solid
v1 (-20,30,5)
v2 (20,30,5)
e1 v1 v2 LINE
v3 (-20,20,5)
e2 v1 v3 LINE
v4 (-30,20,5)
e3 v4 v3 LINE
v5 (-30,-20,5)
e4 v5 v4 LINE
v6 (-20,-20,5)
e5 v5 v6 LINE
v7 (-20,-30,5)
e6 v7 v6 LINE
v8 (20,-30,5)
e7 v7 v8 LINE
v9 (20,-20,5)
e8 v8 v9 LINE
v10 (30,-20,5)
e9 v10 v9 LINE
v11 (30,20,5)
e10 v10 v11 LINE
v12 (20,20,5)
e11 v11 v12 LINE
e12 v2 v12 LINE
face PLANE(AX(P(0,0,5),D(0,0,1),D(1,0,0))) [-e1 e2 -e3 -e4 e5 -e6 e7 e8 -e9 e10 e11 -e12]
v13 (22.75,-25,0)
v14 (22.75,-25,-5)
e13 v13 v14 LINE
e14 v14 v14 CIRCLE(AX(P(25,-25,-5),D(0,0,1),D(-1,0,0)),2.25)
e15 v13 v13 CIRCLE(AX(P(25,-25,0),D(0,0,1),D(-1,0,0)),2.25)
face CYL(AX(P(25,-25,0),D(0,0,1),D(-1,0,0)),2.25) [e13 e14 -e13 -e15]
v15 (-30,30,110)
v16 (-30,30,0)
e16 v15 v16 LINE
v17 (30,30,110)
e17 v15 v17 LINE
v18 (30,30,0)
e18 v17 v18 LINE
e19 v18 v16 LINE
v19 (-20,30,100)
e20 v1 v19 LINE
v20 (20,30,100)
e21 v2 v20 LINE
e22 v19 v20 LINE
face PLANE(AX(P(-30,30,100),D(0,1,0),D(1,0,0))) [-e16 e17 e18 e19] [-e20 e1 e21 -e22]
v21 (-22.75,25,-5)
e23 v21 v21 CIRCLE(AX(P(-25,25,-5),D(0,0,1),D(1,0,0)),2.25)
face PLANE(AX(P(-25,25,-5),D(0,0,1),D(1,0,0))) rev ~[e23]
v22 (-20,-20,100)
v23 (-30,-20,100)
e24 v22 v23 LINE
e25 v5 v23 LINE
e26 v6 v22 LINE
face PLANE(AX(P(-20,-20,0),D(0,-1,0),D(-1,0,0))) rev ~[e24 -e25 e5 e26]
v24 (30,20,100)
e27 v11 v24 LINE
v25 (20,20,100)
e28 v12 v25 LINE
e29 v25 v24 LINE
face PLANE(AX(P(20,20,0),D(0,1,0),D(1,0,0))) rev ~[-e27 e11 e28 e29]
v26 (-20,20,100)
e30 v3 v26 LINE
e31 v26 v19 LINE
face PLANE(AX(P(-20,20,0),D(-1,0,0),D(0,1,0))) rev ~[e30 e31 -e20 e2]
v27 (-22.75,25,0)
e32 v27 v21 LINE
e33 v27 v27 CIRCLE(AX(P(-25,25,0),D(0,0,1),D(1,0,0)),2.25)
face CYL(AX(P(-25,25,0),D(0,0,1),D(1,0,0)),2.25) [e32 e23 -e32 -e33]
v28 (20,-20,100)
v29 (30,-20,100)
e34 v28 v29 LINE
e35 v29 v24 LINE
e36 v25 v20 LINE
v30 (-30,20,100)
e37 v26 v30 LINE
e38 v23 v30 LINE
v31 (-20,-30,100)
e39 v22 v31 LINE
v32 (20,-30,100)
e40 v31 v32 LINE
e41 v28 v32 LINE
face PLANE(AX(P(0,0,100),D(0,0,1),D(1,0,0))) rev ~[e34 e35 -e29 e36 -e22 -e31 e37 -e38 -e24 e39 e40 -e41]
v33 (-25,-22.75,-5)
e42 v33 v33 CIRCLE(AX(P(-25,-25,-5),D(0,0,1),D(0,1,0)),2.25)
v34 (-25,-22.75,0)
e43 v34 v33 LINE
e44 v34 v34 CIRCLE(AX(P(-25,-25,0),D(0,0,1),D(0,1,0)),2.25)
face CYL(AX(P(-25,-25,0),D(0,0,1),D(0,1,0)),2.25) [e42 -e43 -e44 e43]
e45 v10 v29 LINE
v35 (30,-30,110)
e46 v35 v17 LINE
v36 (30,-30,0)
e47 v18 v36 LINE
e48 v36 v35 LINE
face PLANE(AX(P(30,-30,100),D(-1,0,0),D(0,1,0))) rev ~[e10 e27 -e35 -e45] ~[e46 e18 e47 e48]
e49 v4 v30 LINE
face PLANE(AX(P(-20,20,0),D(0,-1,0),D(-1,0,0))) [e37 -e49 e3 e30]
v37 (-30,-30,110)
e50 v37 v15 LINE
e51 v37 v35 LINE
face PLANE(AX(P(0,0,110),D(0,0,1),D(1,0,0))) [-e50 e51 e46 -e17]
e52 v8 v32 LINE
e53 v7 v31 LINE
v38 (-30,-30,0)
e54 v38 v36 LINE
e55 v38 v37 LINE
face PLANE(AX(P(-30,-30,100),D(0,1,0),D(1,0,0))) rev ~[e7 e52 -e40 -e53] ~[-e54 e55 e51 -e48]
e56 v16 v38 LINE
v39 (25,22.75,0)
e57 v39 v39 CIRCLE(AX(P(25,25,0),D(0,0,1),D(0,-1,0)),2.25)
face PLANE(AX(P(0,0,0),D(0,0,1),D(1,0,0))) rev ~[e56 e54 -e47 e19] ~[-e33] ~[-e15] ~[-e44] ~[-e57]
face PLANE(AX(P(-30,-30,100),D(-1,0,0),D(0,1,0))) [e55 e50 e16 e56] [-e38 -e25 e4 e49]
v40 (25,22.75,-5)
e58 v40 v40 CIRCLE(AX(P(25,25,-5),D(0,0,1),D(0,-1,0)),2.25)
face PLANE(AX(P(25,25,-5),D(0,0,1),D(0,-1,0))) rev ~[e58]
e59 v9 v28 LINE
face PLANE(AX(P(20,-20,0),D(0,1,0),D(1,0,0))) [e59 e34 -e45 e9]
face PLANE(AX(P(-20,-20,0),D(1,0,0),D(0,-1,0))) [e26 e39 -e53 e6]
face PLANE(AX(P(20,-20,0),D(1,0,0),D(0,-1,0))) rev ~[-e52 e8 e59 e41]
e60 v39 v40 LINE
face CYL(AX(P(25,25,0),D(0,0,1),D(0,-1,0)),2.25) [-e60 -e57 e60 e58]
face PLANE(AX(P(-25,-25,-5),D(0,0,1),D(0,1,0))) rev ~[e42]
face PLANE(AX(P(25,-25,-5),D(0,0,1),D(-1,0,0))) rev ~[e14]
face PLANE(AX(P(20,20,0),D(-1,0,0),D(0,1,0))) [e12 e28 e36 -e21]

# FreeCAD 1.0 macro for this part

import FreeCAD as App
import Part
import Sketcher

V = App.Vector
Q = App.Units.Quantity

doc = App.newDocument("Part")
body = doc.addObject("PartDesign::Body", "Body")

# Sketch on XY plane
sketch1 = body.newObject("Sketcher::SketchObject", "Sketch")
sketch1.AttachmentSupport = (doc.getObject("XY_Plane"), [""])
sketch1.MapMode = "FlatFace"
sketch1.addGeometry([
    Part.LineSegment(V(-30, 30, 0), V(-30, -30, 0)),
    Part.LineSegment(V(-30, -30, 0), V(30, -30, 0)),
    Part.LineSegment(V(30, -30, 0), V(30, 30, 0)),
    Part.LineSegment(V(30, 30, 0), V(-30, 30, 0)),
], False)
sketch1.addConstraint([
    Sketcher.Constraint("Coincident", 0, 2, 1, 1),
    Sketcher.Constraint("Coincident", 1, 2, 2, 1),
    Sketcher.Constraint("Coincident", 2, 2, 3, 1),
    Sketcher.Constraint("Coincident", 3, 2, 0, 1),
    Sketcher.Constraint("Vertical", 0),
    Sketcher.Constraint("Horizontal", 1),
    Sketcher.Constraint("Vertical", 2),
    Sketcher.Constraint("Horizontal", 3),
    Sketcher.Constraint("Symmetric", 0, 2, 2, 2, -1, 1),
    Sketcher.Constraint("Equal", 3, 0),
    Sketcher.Constraint("DistanceX", 1, 1, 1, 2, Q("60 mm")),
])
pad1 = body.newObject("PartDesign::Pad", "Pad")
pad1.Profile = sketch1
pad1.Length = 5

# Sketch on XY plane
sketch2 = body.newObject("Sketcher::SketchObject", "Sketch001")
sketch2.AttachmentSupport = (doc.getObject("XY_Plane"), [""])
sketch2.MapMode = "FlatFace"
sketch2.addGeometry(Part.Circle(V(-25, 25, 0), V(0, 0, 1), 2.2), False)
sketch2.addConstraint([
    Sketcher.Constraint("Diameter", 0, Q("4.5 mm")),
    Sketcher.Constraint("DistanceX", 0, 3, -1, 1, Q("25 mm")),
    Sketcher.Constraint("DistanceY", -1, 1, 0, 3, Q("25 mm")),
])
pad2 = body.newObject("PartDesign::Pad", "Pad001")
pad2.Profile = sketch2
pad2.Length = 5
pad2.Reversed = True
doc.recompute()

polarpattern = body.newObject("PartDesign::PolarPattern", "PolarPattern")
polarpattern.Originals = [pad2]
polarpattern.Axis = (doc.getObject("Z_Axis"), [""])
polarpattern.Angle = 360
polarpattern.Occurrences = 4
body.Tip = polarpattern

# Sketch on XY plane
sketch3 = body.newObject("Sketcher::SketchObject", "Sketch002")
sketch3.AttachmentSupport = (doc.getObject("XY_Plane"), [""])
sketch3.MapMode = "FlatFace"
sketch3.addGeometry([
    Part.LineSegment(V(20, 30, 0), V(20, 20, 0)),
    Part.LineSegment(V(20, 20, 0), V(30, 20, 0)),
    Part.LineSegment(V(30, 20, 0), V(30, 30, 0)),
    Part.LineSegment(V(30, 30, 0), V(20, 30, 0)),
], False)
sketch3.addConstraint([
    Sketcher.Constraint("Coincident", 0, 2, 1, 1),
    Sketcher.Constraint("Coincident", 1, 2, 2, 1),
    Sketcher.Constraint("Coincident", 2, 2, 3, 1),
    Sketcher.Constraint("Coincident", 3, 2, 0, 1),
    Sketcher.Constraint("Vertical", 0),
    Sketcher.Constraint("Horizontal", 1),
    Sketcher.Constraint("Vertical", 2),
    Sketcher.Constraint("Horizontal", 3),
    Sketcher.Constraint("Equal", 3, 0),
    Sketcher.Constraint("DistanceX", 1, 1, 1, 2, Q("10 mm")),
    Sketcher.Constraint("DistanceX", -1, 1, 0, 2, Q("20 mm")),
    Sketcher.Constraint("DistanceY", -1, 1, 0, 2, Q("20 mm")),
])
pad3 = body.newObject("PartDesign::Pad", "Pad002")
pad3.Profile = sketch3
pad3.Length = 100
doc.recompute()

polarpattern2 = body.newObject("PartDesign::PolarPattern", "PolarPattern001")
polarpattern2.Originals = [pad3]
polarpattern2.Axis = (doc.getObject("Z_Axis"), [""])
polarpattern2.Angle = 360
polarpattern2.Occurrences = 4
body.Tip = polarpattern2

# Sketch on XY plane
sketch4 = body.newObject("Sketcher::SketchObject", "Sketch003")
sketch4.AttachmentSupport = (doc.getObject("XY_Plane"), [""])
sketch4.MapMode = "FlatFace"
sketch4.AttachmentOffset = App.Placement(V(0, 0, 100), App.Rotation())
sketch4.addGeometry([
    Part.LineSegment(V(-30, 30, 0), V(-30, -30, 0)),
    Part.LineSegment(V(-30, -30, 0), V(30, -30, 0)),
    Part.LineSegment(V(30, -30, 0), V(30, 30, 0)),
    Part.LineSegment(V(30, 30, 0), V(-30, 30, 0)),
], False)
sketch4.addConstraint([
    Sketcher.Constraint("Coincident", 0, 2, 1, 1),
    Sketcher.Constraint("Coincident", 1, 2, 2, 1),
    Sketcher.Constraint("Coincident", 2, 2, 3, 1),
    Sketcher.Constraint("Coincident", 3, 2, 0, 1),
    Sketcher.Constraint("Vertical", 0),
    Sketcher.Constraint("Horizontal", 1),
    Sketcher.Constraint("Vertical", 2),
    Sketcher.Constraint("Horizontal", 3),
    Sketcher.Constraint("Symmetric", 0, 2, 2, 2, -1, 1),
    Sketcher.Constraint("Equal", 3, 0),
    Sketcher.Constraint("DistanceX", 1, 1, 1, 2, Q("60 mm")),
])
pad4 = body.newObject("PartDesign::Pad", "Pad003")
pad4.Profile = sketch4
pad4.Length = 10

doc.recompute()
